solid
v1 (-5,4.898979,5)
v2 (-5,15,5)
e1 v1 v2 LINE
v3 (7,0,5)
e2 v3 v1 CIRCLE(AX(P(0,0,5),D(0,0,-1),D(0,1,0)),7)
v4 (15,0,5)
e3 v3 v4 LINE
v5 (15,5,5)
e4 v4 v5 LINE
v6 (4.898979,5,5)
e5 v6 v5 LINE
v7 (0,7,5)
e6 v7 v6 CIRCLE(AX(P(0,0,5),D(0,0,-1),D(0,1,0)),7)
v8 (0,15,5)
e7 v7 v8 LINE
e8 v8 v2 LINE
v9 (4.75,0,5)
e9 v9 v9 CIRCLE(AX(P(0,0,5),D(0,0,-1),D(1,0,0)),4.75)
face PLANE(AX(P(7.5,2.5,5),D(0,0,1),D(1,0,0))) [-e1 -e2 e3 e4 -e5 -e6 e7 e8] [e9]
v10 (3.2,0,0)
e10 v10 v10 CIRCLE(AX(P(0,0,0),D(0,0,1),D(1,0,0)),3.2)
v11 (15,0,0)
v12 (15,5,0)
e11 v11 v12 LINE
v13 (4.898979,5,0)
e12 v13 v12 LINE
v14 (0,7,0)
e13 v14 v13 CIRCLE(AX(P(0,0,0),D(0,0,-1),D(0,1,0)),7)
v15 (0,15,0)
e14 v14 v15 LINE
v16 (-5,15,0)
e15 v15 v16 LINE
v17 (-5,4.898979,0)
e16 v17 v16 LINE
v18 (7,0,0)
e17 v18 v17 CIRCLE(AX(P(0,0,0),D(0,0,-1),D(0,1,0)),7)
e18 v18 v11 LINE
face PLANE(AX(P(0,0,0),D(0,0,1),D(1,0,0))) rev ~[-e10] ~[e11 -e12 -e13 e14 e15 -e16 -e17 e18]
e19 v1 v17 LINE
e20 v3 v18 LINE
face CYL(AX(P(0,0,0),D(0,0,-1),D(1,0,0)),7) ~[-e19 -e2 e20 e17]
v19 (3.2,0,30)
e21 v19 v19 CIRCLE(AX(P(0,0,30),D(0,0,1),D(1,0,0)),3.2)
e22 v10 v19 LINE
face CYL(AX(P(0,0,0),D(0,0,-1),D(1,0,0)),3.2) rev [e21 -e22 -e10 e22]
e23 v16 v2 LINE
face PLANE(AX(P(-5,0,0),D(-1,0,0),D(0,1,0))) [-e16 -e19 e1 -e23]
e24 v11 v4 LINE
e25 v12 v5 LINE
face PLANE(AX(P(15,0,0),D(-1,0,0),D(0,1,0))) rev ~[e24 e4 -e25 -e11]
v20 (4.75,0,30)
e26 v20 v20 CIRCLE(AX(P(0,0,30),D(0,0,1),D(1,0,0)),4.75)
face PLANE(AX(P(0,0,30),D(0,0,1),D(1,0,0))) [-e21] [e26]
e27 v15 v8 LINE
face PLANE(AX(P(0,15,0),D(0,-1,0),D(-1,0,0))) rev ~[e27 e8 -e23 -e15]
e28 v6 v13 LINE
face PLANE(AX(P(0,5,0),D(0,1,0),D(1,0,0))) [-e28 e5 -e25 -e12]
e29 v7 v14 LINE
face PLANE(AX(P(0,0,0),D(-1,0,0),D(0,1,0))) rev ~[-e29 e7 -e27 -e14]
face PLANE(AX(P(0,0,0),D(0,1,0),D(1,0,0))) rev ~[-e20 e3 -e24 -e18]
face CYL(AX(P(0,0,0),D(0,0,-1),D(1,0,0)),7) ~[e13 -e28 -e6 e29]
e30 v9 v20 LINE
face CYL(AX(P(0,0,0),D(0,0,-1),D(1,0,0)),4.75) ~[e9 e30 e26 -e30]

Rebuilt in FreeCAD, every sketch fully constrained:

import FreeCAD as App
import Part
import Sketcher


def add_polygon(sketch, points):
    """Adds a closed chain of lines whose ends are joined by coincident constraints."""
    first, n = sketch.GeometryCount, len(points)
    for a, b in zip(points, points[1:] + points[:1]):
        sketch.addGeometry(Part.LineSegment(App.Vector(*a, 0), App.Vector(*b, 0)), False)
    for i in range(n):
        sketch.addConstraint(Sketcher.Constraint("Coincident", first + i, 2, first + (i + 1) % n, 1))

doc = App.newDocument("Part")
body = doc.addObject("PartDesign::Body", "Body")

# Sketch on XY plane
sketch1 = doc.addObject("Sketcher::SketchObject", "Sketch")
body.addObject(sketch1)
sketch1.AttachmentSupport = (doc.XY_Plane, [""])
sketch1.MapMode = "FlatFace"
sketch1.addGeometry(Part.Circle(App.Vector(0, 0, 0), App.Vector(0, 0, 1), 3.2), False)
sketch1.addConstraint([
    Sketcher.Constraint("Coincident", 0, 3, -1, 1),
    Sketcher.Constraint("Diameter", 0, 6.4),
])
pad1 = doc.addObject("PartDesign::Pad", "Pad")
body.addObject(pad1)
pad1.Profile = sketch1
pad1.Length = 30
body2 = doc.addObject("PartDesign::Body", "Body001")

# Sketch on XY plane
sketch2 = doc.addObject("Sketcher::SketchObject", "Sketch001")
body2.addObject(sketch2)
sketch2.AttachmentSupport = (doc.getObject("XY_Plane001"), [""])
sketch2.MapMode = "FlatFace"
add_polygon(sketch2, [(0, 5), (0, 0), (15, 0), (15, 5)])  # lines 0-3
sketch2.addConstraint([
    Sketcher.Constraint("Vertical", 0),
    Sketcher.Constraint("Horizontal", 1),
    Sketcher.Constraint("Vertical", 2),
    Sketcher.Constraint("Horizontal", 3),
    Sketcher.Constraint("Coincident", 0, 2, -1, 1),
    Sketcher.Constraint("DistanceX", 1, 1, 1, 2, 15.0),
    Sketcher.Constraint("DistanceY", 0, 2, 0, 1, 5.0),
])
pad2 = doc.addObject("PartDesign::Pad", "Pad001")
body2.addObject(pad2)
pad2.Profile = sketch2
pad2.Length = 5
body3 = doc.addObject("PartDesign::Body", "Body002")
doc.recompute()

body2.Placement = App.Placement(App.Vector(0, 0, 0), App.Rotation(App.Vector(0, 0, 1), 90))
boolean = doc.addObject("PartDesign::Boolean", "Boolean")
body3.addObject(boolean)
boolean.Type = "Fuse"
boolean.addObjects([body2])
body4 = doc.addObject("PartDesign::Body", "Body003")

# Sketch on XY plane
sketch3 = doc.addObject("Sketcher::SketchObject", "Sketch002")
body4.addObject(sketch3)
sketch3.AttachmentSupport = (doc.getObject("XY_Plane003"), [""])
sketch3.MapMode = "FlatFace"
add_polygon(sketch3, [(0, 5), (0, 0), (15, 0), (15, 5)])  # lines 0-3
sketch3.addConstraint([
    Sketcher.Constraint("Vertical", 0),
    Sketcher.Constraint("Horizontal", 1),
    Sketcher.Constraint("Vertical", 2),
    Sketcher.Constraint("Horizontal", 3),
    Sketcher.Constraint("Coincident", 0, 2, -1, 1),
    Sketcher.Constraint("DistanceX", 1, 1, 1, 2, 15.0),
    Sketcher.Constraint("DistanceY", 0, 2, 0, 1, 5.0),
])
pad3 = doc.addObject("PartDesign::Pad", "Pad002")
body4.addObject(pad3)
pad3.Profile = sketch3
pad3.Length = 5
body5 = doc.addObject("PartDesign::Body", "Body004")

# Sketch on XY plane
sketch4 = doc.addObject("Sketcher::SketchObject", "Sketch003")
body5.addObject(sketch4)
sketch4.AttachmentSupport = (doc.getObject("XY_Plane004"), [""])
sketch4.MapMode = "FlatFace"
sketch4.addGeometry(Part.Circle(App.Vector(0, 0, 0), App.Vector(0, 0, 1), 4.75), False)
sketch4.addConstraint([
    Sketcher.Constraint("Coincident", 0, 3, -1, 1),
    Sketcher.Constraint("Diameter", 0, 9.5),
])
pad4 = doc.addObject("PartDesign::Pad", "Pad003")
body5.addObject(pad4)
pad4.Profile = sketch4
pad4.Length = 30
body6 = doc.addObject("PartDesign::Body", "Body005")

# Sketch on XY plane
sketch5 = doc.addObject("Sketcher::SketchObject", "Sketch004")
body6.addObject(sketch5)
sketch5.AttachmentSupport = (doc.getObject("XY_Plane005"), [""])
sketch5.MapMode = "FlatFace"
sketch5.addGeometry(Part.Circle(App.Vector(0, 0, 0), App.Vector(0, 0, 1), 7), False)
sketch5.addConstraint([
    Sketcher.Constraint("Coincident", 0, 3, -1, 1),
    Sketcher.Constraint("Diameter", 0, 14.0),
])
pad5 = doc.addObject("PartDesign::Pad", "Pad004")
body6.addObject(pad5)
pad5.Profile = sketch5
pad5.Length = 5
doc.recompute()

boolean2 = doc.addObject("PartDesign::Boolean", "Boolean001")
body6.addObject(boolean2)
boolean2.Type = "Fuse"
boolean2.addObjects([body5])
doc.recompute()

boolean3 = doc.addObject("PartDesign::Boolean", "Boolean002")
body6.addObject(boolean3)
boolean3.Type = "Fuse"
boolean3.addObjects([body3])
doc.recompute()

boolean4 = doc.addObject("PartDesign::Boolean", "Boolean003")
body6.addObject(boolean4)
boolean4.Type = "Fuse"
boolean4.addObjects([body4])
doc.recompute()

boolean5 = doc.addObject("PartDesign::Boolean", "Boolean004")
body6.addObject(boolean5)
boolean5.Type = "Cut"
boolean5.addObjects([body])

doc.recompute()
